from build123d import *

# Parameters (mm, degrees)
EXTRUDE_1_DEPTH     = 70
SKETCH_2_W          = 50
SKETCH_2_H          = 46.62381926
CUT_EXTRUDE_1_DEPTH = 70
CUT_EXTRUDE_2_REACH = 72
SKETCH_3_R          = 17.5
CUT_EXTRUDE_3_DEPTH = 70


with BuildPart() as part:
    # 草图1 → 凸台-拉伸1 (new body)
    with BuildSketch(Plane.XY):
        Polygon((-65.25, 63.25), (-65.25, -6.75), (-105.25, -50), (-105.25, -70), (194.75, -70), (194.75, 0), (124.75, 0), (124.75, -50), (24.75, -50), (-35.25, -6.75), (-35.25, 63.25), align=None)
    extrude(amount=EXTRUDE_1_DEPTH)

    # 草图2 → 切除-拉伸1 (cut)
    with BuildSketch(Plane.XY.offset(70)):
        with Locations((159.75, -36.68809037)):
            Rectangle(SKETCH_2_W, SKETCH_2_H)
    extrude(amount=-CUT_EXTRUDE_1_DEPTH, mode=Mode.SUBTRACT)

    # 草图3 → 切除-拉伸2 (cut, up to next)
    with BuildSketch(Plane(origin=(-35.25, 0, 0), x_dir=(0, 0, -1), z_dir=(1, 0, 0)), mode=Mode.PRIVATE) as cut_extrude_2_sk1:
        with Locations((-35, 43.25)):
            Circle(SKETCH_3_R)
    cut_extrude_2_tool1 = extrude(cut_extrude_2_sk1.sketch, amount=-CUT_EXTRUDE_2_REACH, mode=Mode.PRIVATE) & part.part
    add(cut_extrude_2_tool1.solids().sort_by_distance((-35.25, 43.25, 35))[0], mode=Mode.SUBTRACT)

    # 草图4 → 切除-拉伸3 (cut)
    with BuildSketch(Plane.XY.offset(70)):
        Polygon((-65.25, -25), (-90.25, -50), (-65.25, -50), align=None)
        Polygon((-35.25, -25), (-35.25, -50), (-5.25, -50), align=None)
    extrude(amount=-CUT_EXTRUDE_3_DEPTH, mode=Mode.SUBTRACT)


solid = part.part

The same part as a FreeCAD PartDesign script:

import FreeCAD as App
import Part
import Sketcher

V = App.Vector


def add_polygon(sketch, points):
    """Adds a closed chain of lines whose ends are joined by coincident constraints."""
    first, n = sketch.GeometryCount, len(points)
    for a, b in zip(points, points[1:] + points[:1]):
        sketch.addGeometry(Part.LineSegment(App.Vector(*a, 0), App.Vector(*b, 0)), False)
    for i in range(n):
        sketch.addConstraint(Sketcher.Constraint("Coincident", first + i, 2, first + (i + 1) % n, 1))

doc = App.newDocument("Part")
body = doc.addObject("PartDesign::Body", "Body")

# Sketch on XY plane
sketch1 = body.newObject("Sketcher::SketchObject", "Sketch")
sketch1.AttachmentSupport = (doc.getObject("XY_Plane"), [""])
sketch1.MapMode = "FlatFace"
add_polygon(sketch1, [(-65.25, 63.25), (-65.25, -6.75), (-105.25, -50), (-105.25, -70), (194.75, -70), (194.75, 0), (124.75, 0), (124.75, -50), (24.75, -50), (-35.25, -6.75), (-35.25, 63.25)])  # lines 0-10
sketch1.addConstraint([
    Sketcher.Constraint("Vertical", 0),
    Sketcher.Constraint("Vertical", 2),
    Sketcher.Constraint("Horizontal", 3),
    Sketcher.Constraint("Vertical", 4),
    Sketcher.Constraint("Horizontal", 5),
    Sketcher.Constraint("Vertical", 6),
    Sketcher.Constraint("Horizontal", 7),
    Sketcher.Constraint("Vertical", 9),
    Sketcher.Constraint("Horizontal", 10),
    Sketcher.Constraint("PointOnObject", 4, 2, -1),
    Sketcher.Constraint("Horizontal", 1, 2, 6, 2),
    Sketcher.Constraint("Horizontal", 0, 2, 8, 2),
    Sketcher.Constraint("Equal", 5, 0),
    Sketcher.Constraint("Equal", 0, 4),
    Sketcher.Constraint("DistanceX", 3, 1, 3, 2, 300.0),
    Sketcher.Constraint("DistanceX", 5, 2, 5, 1, 70.0),
    Sketcher.Constraint("DistanceX", 7, 2, 7, 1, 100.0),
    Sketcher.Constraint("DistanceX", 10, 2, 10, 1, 30.0),
    Sketcher.Constraint("DistanceY", 2, 2, 2, 1, 20.0),
    Sketcher.Constraint("DistanceX", 1, 2, 0, 2, 40.0),
    Sketcher.Constraint("DistanceX", 0, 2, -1, 1, 65.25),
    Sketcher.Constraint("DistanceY", 0, 2, -1, 1, 6.75),
])
pad1 = body.newObject("PartDesign::Pad", "Pad")
pad1.Profile = sketch1
pad1.Length = 70

# Sketch on XY plane
sketch2 = body.newObject("Sketcher::SketchObject", "Sketch001")
sketch2.AttachmentSupport = (doc.getObject("XY_Plane"), [""])
sketch2.MapMode = "FlatFace"
sketch2.AttachmentOffset = App.Placement(V(0, 0, 70), App.Rotation())
add_polygon(sketch2, [(134.75, -13.376181), (134.75, -60), (184.75, -60), (184.75, -13.376181)])  # lines 0-3
sketch2.addConstraint([
    Sketcher.Constraint("Vertical", 0),
    Sketcher.Constraint("Horizontal", 1),
    Sketcher.Constraint("Vertical", 2),
    Sketcher.Constraint("Horizontal", 3),
    Sketcher.Constraint("DistanceX", 1, 1, 1, 2, 50.0),
    Sketcher.Constraint("DistanceY", 0, 2, -1, 1, 60.0),
    Sketcher.Constraint("DistanceX", -1, 1, 0, 2, 134.75),
    Sketcher.Constraint("DistanceY", 0, 2, 0, 1, 46.623819),
])
pocket1 = body.newObject("PartDesign::Pocket", "Pocket")
pocket1.Profile = sketch2
pocket1.Length = 70

# Sketch on YZ plane
sketch3 = body.newObject("Sketcher::SketchObject", "Sketch002")
sketch3.AttachmentSupport = (doc.getObject("YZ_Plane"), [""])
sketch3.MapMode = "FlatFace"
sketch3.AttachmentOffset = App.Placement(V(0, 0, -35.25), App.Rotation())
sketch3.addGeometry(Part.Circle(V(43.25, 35, 0), V(0, 0, 1), 17.5), False)
sketch3.addConstraint([
    Sketcher.Constraint("Diameter", 0, 35.0),
    Sketcher.Constraint("DistanceY", -1, 1, 0, 3, 35.0),
    Sketcher.Constraint("DistanceX", -1, 1, 0, 3, 43.25),
])
pocket2 = body.newObject("PartDesign::Pocket", "Pocket001")
pocket2.Profile = sketch3
pocket2.Type = "UpToFirst"

# Sketch on XY plane
sketch4 = body.newObject("Sketcher::SketchObject", "Sketch003")
sketch4.AttachmentSupport = (doc.getObject("XY_Plane"), [""])
sketch4.MapMode = "FlatFace"
sketch4.AttachmentOffset = App.Placement(V(0, 0, 70), App.Rotation())
add_polygon(sketch4, [(-65.25, -25), (-90.25, -50), (-65.25, -50)])  # lines 0-2
add_polygon(sketch4, [(-35.25, -25), (-35.25, -50), (-5.25, -50)])  # lines 3-5
sketch4.addConstraint([
    Sketcher.Constraint("Horizontal", 1),
    Sketcher.Constraint("Vertical", 2),
    Sketcher.Constraint("Vertical", 3),
    Sketcher.Constraint("Horizontal", 4),
    Sketcher.Constraint("Horizontal", 1, 2, 3, 2),
    Sketcher.Constraint("Horizontal", 2, 2, 5, 2),
    Sketcher.Constraint("Equal", 1, 2),
    Sketcher.Constraint("DistanceX", 1, 1, 1, 2, 25.0),
    Sketcher.Constraint("DistanceX", 4, 1, 4, 2, 30.0),
    Sketcher.Constraint("DistanceY", 0, 2, -1, 1, 50.0),
    Sketcher.Constraint("DistanceX", 1, 2, 3, 2, 30.0),
    Sketcher.Constraint("DistanceX", 0, 2, -1, 1, 90.25),
])
pocket3 = body.newObject("PartDesign::Pocket", "Pocket002")
pocket3.Profile = sketch4
pocket3.Length = 70

doc.recompute()
